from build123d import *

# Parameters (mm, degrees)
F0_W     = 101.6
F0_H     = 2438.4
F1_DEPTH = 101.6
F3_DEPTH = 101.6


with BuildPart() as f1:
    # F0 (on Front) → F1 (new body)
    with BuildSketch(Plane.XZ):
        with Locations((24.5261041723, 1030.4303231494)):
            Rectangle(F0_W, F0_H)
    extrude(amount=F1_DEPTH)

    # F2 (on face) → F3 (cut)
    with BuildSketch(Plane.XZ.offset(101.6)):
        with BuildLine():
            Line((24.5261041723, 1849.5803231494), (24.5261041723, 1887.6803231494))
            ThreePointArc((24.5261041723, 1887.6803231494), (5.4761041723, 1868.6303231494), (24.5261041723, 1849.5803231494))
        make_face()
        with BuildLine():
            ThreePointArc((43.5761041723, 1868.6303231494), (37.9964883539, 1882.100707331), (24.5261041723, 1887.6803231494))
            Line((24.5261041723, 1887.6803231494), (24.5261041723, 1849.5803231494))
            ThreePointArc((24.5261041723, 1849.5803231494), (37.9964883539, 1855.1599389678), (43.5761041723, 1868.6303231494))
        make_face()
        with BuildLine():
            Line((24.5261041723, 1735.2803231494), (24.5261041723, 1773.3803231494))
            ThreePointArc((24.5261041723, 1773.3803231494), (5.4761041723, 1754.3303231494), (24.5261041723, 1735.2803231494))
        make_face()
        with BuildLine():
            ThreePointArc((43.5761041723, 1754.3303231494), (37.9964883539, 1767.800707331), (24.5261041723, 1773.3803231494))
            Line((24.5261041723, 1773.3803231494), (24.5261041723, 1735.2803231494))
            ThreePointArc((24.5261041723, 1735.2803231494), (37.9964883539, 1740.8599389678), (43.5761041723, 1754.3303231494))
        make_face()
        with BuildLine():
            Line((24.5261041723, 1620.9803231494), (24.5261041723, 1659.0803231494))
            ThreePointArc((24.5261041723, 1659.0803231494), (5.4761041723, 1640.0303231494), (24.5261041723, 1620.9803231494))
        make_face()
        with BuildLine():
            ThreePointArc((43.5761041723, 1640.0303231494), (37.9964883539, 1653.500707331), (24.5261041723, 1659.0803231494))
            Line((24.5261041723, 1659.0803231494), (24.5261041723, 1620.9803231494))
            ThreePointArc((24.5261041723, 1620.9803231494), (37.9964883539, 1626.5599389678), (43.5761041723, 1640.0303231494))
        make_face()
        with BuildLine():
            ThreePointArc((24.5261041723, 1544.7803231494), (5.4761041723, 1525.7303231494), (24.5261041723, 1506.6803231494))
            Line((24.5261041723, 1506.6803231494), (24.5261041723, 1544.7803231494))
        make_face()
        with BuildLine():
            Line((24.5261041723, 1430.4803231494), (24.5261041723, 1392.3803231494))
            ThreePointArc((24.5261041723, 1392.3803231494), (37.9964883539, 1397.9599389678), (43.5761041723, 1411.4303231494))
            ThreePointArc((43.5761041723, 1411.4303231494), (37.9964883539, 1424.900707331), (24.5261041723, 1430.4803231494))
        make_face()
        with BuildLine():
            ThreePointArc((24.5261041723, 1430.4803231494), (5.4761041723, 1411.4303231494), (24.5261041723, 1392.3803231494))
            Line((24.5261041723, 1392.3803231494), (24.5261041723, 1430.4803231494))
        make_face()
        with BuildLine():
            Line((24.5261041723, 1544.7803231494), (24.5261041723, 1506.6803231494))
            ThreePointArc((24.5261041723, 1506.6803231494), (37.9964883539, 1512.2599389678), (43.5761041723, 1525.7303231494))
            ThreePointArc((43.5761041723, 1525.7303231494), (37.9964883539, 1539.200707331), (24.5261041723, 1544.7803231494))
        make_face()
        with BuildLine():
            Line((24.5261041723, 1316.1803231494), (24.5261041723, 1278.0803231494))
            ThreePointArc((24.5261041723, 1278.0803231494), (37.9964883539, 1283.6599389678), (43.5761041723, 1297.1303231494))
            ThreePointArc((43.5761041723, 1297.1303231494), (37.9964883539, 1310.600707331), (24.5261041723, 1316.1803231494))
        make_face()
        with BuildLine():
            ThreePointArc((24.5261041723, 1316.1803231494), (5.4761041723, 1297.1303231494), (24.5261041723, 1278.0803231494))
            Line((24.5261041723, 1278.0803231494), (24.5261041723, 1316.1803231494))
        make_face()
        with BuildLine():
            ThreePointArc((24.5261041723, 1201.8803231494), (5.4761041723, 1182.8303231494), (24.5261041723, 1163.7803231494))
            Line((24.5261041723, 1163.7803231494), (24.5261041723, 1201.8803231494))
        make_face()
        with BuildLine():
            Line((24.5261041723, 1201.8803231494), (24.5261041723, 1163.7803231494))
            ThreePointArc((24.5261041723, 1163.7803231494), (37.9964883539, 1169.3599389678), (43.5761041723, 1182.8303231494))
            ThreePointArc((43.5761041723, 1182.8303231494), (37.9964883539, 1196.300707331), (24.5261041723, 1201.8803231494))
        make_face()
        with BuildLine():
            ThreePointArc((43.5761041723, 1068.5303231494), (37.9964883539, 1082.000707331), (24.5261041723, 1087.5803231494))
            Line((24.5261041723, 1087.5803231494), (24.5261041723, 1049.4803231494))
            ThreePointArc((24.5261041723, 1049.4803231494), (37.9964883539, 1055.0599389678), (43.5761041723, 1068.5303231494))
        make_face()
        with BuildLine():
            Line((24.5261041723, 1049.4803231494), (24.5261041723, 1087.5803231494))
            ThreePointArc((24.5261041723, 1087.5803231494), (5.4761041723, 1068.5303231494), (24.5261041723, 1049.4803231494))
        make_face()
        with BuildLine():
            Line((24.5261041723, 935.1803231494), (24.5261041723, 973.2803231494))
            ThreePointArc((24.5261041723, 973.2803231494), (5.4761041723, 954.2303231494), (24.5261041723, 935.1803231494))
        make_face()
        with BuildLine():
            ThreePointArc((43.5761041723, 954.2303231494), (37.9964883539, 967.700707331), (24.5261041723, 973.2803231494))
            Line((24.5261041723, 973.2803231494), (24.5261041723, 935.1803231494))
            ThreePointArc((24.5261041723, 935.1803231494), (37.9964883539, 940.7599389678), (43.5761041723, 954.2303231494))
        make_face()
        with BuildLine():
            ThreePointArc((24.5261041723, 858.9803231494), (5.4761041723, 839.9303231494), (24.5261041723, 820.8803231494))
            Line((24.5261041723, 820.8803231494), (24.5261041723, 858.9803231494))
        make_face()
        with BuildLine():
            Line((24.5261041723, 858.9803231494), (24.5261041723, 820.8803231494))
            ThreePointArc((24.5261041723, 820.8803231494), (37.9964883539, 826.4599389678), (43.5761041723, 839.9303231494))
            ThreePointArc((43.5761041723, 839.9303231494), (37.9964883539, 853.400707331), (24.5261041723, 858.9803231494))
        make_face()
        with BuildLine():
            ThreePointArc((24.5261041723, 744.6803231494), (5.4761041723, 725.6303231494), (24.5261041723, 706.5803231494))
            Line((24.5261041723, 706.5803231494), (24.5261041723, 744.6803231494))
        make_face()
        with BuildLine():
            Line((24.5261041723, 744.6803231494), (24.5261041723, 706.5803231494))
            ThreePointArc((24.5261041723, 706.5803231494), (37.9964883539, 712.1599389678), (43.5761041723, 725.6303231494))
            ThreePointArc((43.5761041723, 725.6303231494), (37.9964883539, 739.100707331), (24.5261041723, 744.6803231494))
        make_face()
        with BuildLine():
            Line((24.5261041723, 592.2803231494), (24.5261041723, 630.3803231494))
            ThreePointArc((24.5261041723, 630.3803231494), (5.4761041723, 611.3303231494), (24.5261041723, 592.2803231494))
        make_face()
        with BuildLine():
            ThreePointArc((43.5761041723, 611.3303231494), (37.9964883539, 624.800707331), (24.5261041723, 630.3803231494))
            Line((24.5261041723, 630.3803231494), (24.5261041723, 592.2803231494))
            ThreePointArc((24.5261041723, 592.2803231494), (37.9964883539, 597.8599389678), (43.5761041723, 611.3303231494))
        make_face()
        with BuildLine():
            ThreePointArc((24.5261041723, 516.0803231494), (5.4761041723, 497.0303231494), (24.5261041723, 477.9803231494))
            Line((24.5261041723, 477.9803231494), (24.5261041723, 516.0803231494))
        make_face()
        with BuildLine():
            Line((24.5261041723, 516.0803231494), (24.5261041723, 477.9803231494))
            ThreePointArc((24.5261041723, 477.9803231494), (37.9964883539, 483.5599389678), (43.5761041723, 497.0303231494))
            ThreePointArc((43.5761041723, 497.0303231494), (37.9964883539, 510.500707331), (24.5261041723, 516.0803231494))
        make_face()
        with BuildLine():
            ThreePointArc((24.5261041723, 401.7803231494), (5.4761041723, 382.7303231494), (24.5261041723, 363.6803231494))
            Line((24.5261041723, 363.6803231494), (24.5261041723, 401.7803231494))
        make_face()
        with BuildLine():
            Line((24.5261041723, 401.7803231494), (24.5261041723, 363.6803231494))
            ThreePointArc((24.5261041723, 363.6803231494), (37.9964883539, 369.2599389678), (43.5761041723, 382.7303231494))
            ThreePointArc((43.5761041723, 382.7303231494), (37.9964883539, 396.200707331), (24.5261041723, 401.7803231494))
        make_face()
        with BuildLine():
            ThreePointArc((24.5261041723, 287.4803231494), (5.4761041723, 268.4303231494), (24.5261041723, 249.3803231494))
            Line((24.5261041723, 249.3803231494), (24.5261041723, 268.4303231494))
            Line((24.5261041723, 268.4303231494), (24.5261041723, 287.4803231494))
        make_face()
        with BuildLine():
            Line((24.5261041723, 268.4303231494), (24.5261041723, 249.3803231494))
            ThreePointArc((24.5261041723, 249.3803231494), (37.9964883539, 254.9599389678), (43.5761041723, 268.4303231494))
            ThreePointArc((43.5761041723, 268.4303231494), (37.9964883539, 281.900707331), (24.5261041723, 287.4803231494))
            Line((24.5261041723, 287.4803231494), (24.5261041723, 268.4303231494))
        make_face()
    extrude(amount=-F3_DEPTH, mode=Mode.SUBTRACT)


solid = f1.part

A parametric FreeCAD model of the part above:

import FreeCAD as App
import Part
import Sketcher
from FreeCAD import Vector
Q = App.Units.Quantity

doc = App.newDocument("Part")
params = doc.addObject("Spreadsheet::Sheet", "Params")
for row, (alias, value) in enumerate([
    ("sketch1_width", "4 in"),
    ("sketch1_height", "96 in"),
    ("pad1_length", "4 in"),
    ("sketch2_diameter", "1.5 in"),
    ("pocket1_length", "4 in"),
], start=1):
    params.set(f"A{row}", alias)
    params.set(f"B{row}", "=" + value)
    params.setAlias(f"B{row}", alias)

body = doc.addObject("PartDesign::Body", "Body")

# Sketch on XZ plane
sketch1 = body.newObject("Sketcher::SketchObject", "Sketch")
sketch1.AttachmentSupport = (doc.getObject("XZ_Plane"), [""])
sketch1.MapMode = "FlatFace"
sketch1.addGeometry(Part.LineSegment(Vector(-26, 2250, 0), Vector(-26, -189, 0)), False)
sketch1.addGeometry(Part.LineSegment(Vector(-26, -189, 0), Vector(75, -189, 0)), False)
sketch1.addGeometry(Part.LineSegment(Vector(75, -189, 0), Vector(75, 2250, 0)), False)
sketch1.addGeometry(Part.LineSegment(Vector(75, 2250, 0), Vector(-26, 2250, 0)), False)
sketch1.addConstraint(Sketcher.Constraint("Coincident", 0, 2, 1, 1))
sketch1.addConstraint(Sketcher.Constraint("Coincident", 1, 2, 2, 1))
sketch1.addConstraint(Sketcher.Constraint("Coincident", 2, 2, 3, 1))
sketch1.addConstraint(Sketcher.Constraint("Coincident", 3, 2, 0, 1))
sketch1.addConstraint(Sketcher.Constraint("Vertical", 0))
sketch1.addConstraint(Sketcher.Constraint("Horizontal", 1))
sketch1.addConstraint(Sketcher.Constraint("Vertical", 2))
sketch1.addConstraint(Sketcher.Constraint("Horizontal", 3))
sketch1.addConstraint(Sketcher.Constraint("DistanceX", 1, 1, 1, 2, Q("4 in")))
sketch1.addConstraint(Sketcher.Constraint("DistanceY", 0, 2, 0, 1, Q("96 in")))
sketch1.addConstraint(Sketcher.Constraint("DistanceX", 0, 2, -1, 1, Q("26.273896 mm")))
sketch1.addConstraint(Sketcher.Constraint("DistanceY", 0, 2, -1, 1, Q("188.769677 mm")))
sketch1.setExpression("Constraints[8]", "Params.sketch1_width")
sketch1.setExpression("Constraints[9]", "Params.sketch1_height")
pad1 = body.newObject("PartDesign::Pad", "Pad")
pad1.Profile = sketch1
pad1.setExpression("Length", "Params.pad1_length")

# Sketch on XZ plane
sketch2 = body.newObject("Sketcher::SketchObject", "Sketch001")
sketch2.AttachmentSupport = (doc.getObject("XZ_Plane"), [""])
sketch2.MapMode = "FlatFace"
sketch2.AttachmentOffset = App.Placement(Vector(0, 0, 4 * 25.4), App.Rotation())
sketch2.addGeometry(Part.Circle(Vector(25, 1869, 0), Vector(0, 0, 1), 19), False)
sketch2.addGeometry(Part.Circle(Vector(25, 1754, 0), Vector(0, 0, 1), 19), False)
sketch2.addGeometry(Part.Circle(Vector(25, 1640, 0), Vector(0, 0, 1), 19), False)
sketch2.addGeometry(Part.Circle(Vector(25, 1526, 0), Vector(0, 0, 1), 19), False)
sketch2.addGeometry(Part.Circle(Vector(25, 1411, 0), Vector(0, 0, 1), 19), False)
sketch2.addGeometry(Part.Circle(Vector(25, 1297, 0), Vector(0, 0, 1), 19), False)
sketch2.addGeometry(Part.Circle(Vector(25, 1183, 0), Vector(0, 0, 1), 19), False)
sketch2.addGeometry(Part.Circle(Vector(25, 1069, 0), Vector(0, 0, 1), 19), False)
sketch2.addGeometry(Part.Circle(Vector(25, 954, 0), Vector(0, 0, 1), 19), False)
sketch2.addGeometry(Part.Circle(Vector(25, 840, 0), Vector(0, 0, 1), 19), False)
sketch2.addGeometry(Part.Circle(Vector(25, 726, 0), Vector(0, 0, 1), 19), False)
sketch2.addGeometry(Part.Circle(Vector(25, 611, 0), Vector(0, 0, 1), 19), False)
sketch2.addGeometry(Part.Circle(Vector(25, 497, 0), Vector(0, 0, 1), 19), False)
sketch2.addGeometry(Part.Circle(Vector(25, 383, 0), Vector(0, 0, 1), 19), False)
sketch2.addGeometry(Part.Circle(Vector(25, 268, 0), Vector(0, 0, 1), 19), False)
sketch2.addConstraint(Sketcher.Constraint("Equal", 0, 1))
sketch2.addConstraint(Sketcher.Constraint("Equal", 1, 2))
sketch2.addConstraint(Sketcher.Constraint("Equal", 2, 3))
sketch2.addConstraint(Sketcher.Constraint("Equal", 3, 4))
sketch2.addConstraint(Sketcher.Constraint("Equal", 4, 5))
sketch2.addConstraint(Sketcher.Constraint("Equal", 5, 6))
sketch2.addConstraint(Sketcher.Constraint("Equal", 6, 7))
sketch2.addConstraint(Sketcher.Constraint("Equal", 7, 8))
sketch2.addConstraint(Sketcher.Constraint("Equal", 8, 9))
sketch2.addConstraint(Sketcher.Constraint("Equal", 9, 10))
sketch2.addConstraint(Sketcher.Constraint("Equal", 10, 11))
sketch2.addConstraint(Sketcher.Constraint("Equal", 11, 12))
sketch2.addConstraint(Sketcher.Constraint("Equal", 12, 13))
sketch2.addConstraint(Sketcher.Constraint("Equal", 13, 14))
sketch2.addConstraint(Sketcher.Constraint("Vertical", 0, 3, 1, 3))
sketch2.addConstraint(Sketcher.Constraint("Vertical", 1, 3, 2, 3))
sketch2.addConstraint(Sketcher.Constraint("Vertical", 2, 3, 3, 3))
sketch2.addConstraint(Sketcher.Constraint("Vertical", 3, 3, 4, 3))
sketch2.addConstraint(Sketcher.Constraint("Vertical", 4, 3, 5, 3))
sketch2.addConstraint(Sketcher.Constraint("Vertical", 5, 3, 6, 3))
sketch2.addConstraint(Sketcher.Constraint("Vertical", 6, 3, 7, 3))
sketch2.addConstraint(Sketcher.Constraint("Vertical", 7, 3, 8, 3))
sketch2.addConstraint(Sketcher.Constraint("Vertical", 8, 3, 9, 3))
sketch2.addConstraint(Sketcher.Constraint("Vertical", 9, 3, 10, 3))
sketch2.addConstraint(Sketcher.Constraint("Vertical", 10, 3, 11, 3))
sketch2.addConstraint(Sketcher.Constraint("Vertical", 11, 3, 12, 3))
sketch2.addConstraint(Sketcher.Constraint("Vertical", 12, 3, 13, 3))
sketch2.addConstraint(Sketcher.Constraint("Vertical", 13, 3, 14, 3))
sketch2.addConstraint(Sketcher.Constraint("Diameter", 0, Q("1.5 in")))
sketch2.addConstraint(Sketcher.Constraint("DistanceY", 2, 3, 0, 3, Q("9 in")))
sketch2.addConstraint(Sketcher.Constraint("DistanceY", 3, 3, 1, 3, Q("9 in")))
sketch2.addConstraint(Sketcher.Constraint("DistanceY", 4, 3, 2, 3, Q("9 in")))
sketch2.addConstraint(Sketcher.Constraint("DistanceY", 5, 3, 3, 3, Q("9 in")))
sketch2.addConstraint(Sketcher.Constraint("DistanceY", 6, 3, 4, 3, Q("9 in")))
sketch2.addConstraint(Sketcher.Constraint("DistanceY", 7, 3, 5, 3, Q("9 in")))
sketch2.addConstraint(Sketcher.Constraint("DistanceY", 8, 3, 6, 3, Q("9 in")))
sketch2.addConstraint(Sketcher.Constraint("DistanceY", 9, 3, 7, 3, Q("9 in")))
sketch2.addConstraint(Sketcher.Constraint("DistanceY", 10, 3, 8, 3, Q("9 in")))
sketch2.addConstraint(Sketcher.Constraint("DistanceY", 11, 3, 9, 3, Q("9 in")))
sketch2.addConstraint(Sketcher.Constraint("DistanceY", 12, 3, 10, 3, Q("9 in")))
sketch2.addConstraint(Sketcher.Constraint("DistanceY", 13, 3, 11, 3, Q("9 in")))
sketch2.addConstraint(Sketcher.Constraint("DistanceY", 14, 3, 12, 3, Q("9 in")))
sketch2.addConstraint(Sketcher.Constraint("DistanceY", 1, 3, 0, 3, Q("4.5 in")))
sketch2.addConstraint(Sketcher.Constraint("DistanceX", -1, 1, 0, 3, Q("24.526104 mm")))
sketch2.addConstraint(Sketcher.Constraint("DistanceY", -1, 1, 0, 3, Q("1868.630323 mm")))
sketch2.setExpression("Constraints[28]", "Params.sketch2_diameter")
pocket1 = body.newObject("PartDesign::Pocket", "Pocket")
pocket1.Profile = sketch2
pocket1.setExpression("Length", "Params.pocket1_length")

doc.recompute()
